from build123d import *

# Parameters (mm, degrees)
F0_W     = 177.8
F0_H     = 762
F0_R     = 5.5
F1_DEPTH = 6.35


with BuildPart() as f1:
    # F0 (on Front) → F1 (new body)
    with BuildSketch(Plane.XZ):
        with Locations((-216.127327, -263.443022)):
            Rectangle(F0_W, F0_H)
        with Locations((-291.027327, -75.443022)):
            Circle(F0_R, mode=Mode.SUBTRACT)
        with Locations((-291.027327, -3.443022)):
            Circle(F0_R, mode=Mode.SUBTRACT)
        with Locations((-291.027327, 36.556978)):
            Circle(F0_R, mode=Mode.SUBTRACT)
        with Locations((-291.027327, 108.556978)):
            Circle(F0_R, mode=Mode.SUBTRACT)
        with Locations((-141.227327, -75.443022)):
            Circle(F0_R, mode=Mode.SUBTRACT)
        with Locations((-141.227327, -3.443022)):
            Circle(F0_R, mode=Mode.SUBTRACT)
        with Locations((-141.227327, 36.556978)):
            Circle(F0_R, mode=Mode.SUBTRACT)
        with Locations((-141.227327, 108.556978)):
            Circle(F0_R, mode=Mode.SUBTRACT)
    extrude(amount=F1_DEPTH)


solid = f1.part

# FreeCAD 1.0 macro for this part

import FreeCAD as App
import Part
import Sketcher
Q = App.Units.Quantity


def add_polygon(sketch, points):
    """Adds a closed chain of lines whose ends are joined by coincident constraints."""
    first, n = sketch.GeometryCount, len(points)
    for a, b in zip(points, points[1:] + points[:1]):
        sketch.addGeometry(Part.LineSegment(App.Vector(*a, 0), App.Vector(*b, 0)), False)
    for i in range(n):
        sketch.addConstraint(Sketcher.Constraint("Coincident", first + i, 2, first + (i + 1) % n, 1))

doc = App.newDocument("Part")
body = doc.addObject("PartDesign::Body", "Body")

# Sketch on XZ plane
sketch1 = body.newObject("Sketcher::SketchObject", "Sketch")
sketch1.AttachmentSupport = (doc.getObject("XZ_Plane"), [""])
sketch1.MapMode = "FlatFace"
add_polygon(sketch1, [(-305.027327, 117.556978), (-305.027327, -644.443022), (-127.227327, -644.443022), (-127.227327, 117.556978)])  # lines 0-3
sketch1.addGeometry(Part.Circle(App.Vector(-291.027327, -75.443022, 0), App.Vector(0, 0, 1), 5.5), False)  # 4
sketch1.addGeometry(Part.Circle(App.Vector(-291.027327, -3.443022, 0), App.Vector(0, 0, 1), 5.5), False)  # 5
sketch1.addGeometry(Part.Circle(App.Vector(-141.227327, -75.443022, 0), App.Vector(0, 0, 1), 5.5), False)  # 6
sketch1.addGeometry(Part.Circle(App.Vector(-141.227327, -3.443022, 0), App.Vector(0, 0, 1), 5.5), False)  # 7
sketch1.addGeometry(Part.Circle(App.Vector(-291.027327, 36.556978, 0), App.Vector(0, 0, 1), 5.5), False)  # 8
sketch1.addGeometry(Part.Circle(App.Vector(-291.027327, 108.556978, 0), App.Vector(0, 0, 1), 5.5), False)  # 9
sketch1.addGeometry(Part.Circle(App.Vector(-141.227327, 36.556978, 0), App.Vector(0, 0, 1), 5.5), False)  # 10
sketch1.addGeometry(Part.Circle(App.Vector(-141.227327, 108.556978, 0), App.Vector(0, 0, 1), 5.5), False)  # 11
sketch1.addConstraint([
    Sketcher.Constraint("Vertical", 0),
    Sketcher.Constraint("Horizontal", 1),
    Sketcher.Constraint("Vertical", 2),
    Sketcher.Constraint("Horizontal", 3),
    Sketcher.Constraint("Equal", 4, 5),
    Sketcher.Constraint("Equal", 5, 6),
    Sketcher.Constraint("Equal", 6, 7),
    Sketcher.Constraint("Equal", 7, 8),
    Sketcher.Constraint("Equal", 8, 9),
    Sketcher.Constraint("Equal", 9, 10),
    Sketcher.Constraint("Equal", 10, 11),
    Sketcher.Constraint("Horizontal", 4, 3, 6, 3),
    Sketcher.Constraint("Horizontal", 5, 3, 7, 3),
    Sketcher.Constraint("Horizontal", 8, 3, 10, 3),
    Sketcher.Constraint("Horizontal", 9, 3, 11, 3),
    Sketcher.Constraint("Vertical", 4, 3, 5, 3),
    Sketcher.Constraint("Vertical", 6, 3, 7, 3),
    Sketcher.Constraint("Vertical", 5, 3, 8, 3),
    Sketcher.Constraint("Vertical", 8, 3, 9, 3),
    Sketcher.Constraint("Vertical", 7, 3, 10, 3),
    Sketcher.Constraint("Vertical", 10, 3, 11, 3),
    Sketcher.Constraint("DistanceX", 1, 1, 1, 2, Q("7 in")),
    Sketcher.Constraint("DistanceY", 0, 2, 0, 1, Q("30 in")),
    Sketcher.Constraint("Diameter", 4, Q("11 mm")),
    Sketcher.Constraint("DistanceY", 4, 3, 5, 3, Q("72 mm")),
    Sketcher.Constraint("DistanceX", 4, 3, 6, 3, Q("149.8 mm")),
    Sketcher.Constraint("DistanceY", 5, 3, 8, 3, Q("40 mm")),
    Sketcher.Constraint("DistanceY", 8, 3, 9, 3, Q("72 mm")),
    Sketcher.Constraint("DistanceX", 0, 2, 4, 3, Q("14 mm")),
    Sketcher.Constraint("DistanceY", 0, 2, 4, 3, Q("569 mm")),
    Sketcher.Constraint("DistanceY", 4, 3, -1, 1, Q("75.443022 mm")),
    Sketcher.Constraint("DistanceX", 4, 3, -1, 1, Q("291.027327 mm")),
])
pad1 = body.newObject("PartDesign::Pad", "Pad")
pad1.Profile = sketch1
pad1.Length = Q("0.25 in")

doc.recompute()
